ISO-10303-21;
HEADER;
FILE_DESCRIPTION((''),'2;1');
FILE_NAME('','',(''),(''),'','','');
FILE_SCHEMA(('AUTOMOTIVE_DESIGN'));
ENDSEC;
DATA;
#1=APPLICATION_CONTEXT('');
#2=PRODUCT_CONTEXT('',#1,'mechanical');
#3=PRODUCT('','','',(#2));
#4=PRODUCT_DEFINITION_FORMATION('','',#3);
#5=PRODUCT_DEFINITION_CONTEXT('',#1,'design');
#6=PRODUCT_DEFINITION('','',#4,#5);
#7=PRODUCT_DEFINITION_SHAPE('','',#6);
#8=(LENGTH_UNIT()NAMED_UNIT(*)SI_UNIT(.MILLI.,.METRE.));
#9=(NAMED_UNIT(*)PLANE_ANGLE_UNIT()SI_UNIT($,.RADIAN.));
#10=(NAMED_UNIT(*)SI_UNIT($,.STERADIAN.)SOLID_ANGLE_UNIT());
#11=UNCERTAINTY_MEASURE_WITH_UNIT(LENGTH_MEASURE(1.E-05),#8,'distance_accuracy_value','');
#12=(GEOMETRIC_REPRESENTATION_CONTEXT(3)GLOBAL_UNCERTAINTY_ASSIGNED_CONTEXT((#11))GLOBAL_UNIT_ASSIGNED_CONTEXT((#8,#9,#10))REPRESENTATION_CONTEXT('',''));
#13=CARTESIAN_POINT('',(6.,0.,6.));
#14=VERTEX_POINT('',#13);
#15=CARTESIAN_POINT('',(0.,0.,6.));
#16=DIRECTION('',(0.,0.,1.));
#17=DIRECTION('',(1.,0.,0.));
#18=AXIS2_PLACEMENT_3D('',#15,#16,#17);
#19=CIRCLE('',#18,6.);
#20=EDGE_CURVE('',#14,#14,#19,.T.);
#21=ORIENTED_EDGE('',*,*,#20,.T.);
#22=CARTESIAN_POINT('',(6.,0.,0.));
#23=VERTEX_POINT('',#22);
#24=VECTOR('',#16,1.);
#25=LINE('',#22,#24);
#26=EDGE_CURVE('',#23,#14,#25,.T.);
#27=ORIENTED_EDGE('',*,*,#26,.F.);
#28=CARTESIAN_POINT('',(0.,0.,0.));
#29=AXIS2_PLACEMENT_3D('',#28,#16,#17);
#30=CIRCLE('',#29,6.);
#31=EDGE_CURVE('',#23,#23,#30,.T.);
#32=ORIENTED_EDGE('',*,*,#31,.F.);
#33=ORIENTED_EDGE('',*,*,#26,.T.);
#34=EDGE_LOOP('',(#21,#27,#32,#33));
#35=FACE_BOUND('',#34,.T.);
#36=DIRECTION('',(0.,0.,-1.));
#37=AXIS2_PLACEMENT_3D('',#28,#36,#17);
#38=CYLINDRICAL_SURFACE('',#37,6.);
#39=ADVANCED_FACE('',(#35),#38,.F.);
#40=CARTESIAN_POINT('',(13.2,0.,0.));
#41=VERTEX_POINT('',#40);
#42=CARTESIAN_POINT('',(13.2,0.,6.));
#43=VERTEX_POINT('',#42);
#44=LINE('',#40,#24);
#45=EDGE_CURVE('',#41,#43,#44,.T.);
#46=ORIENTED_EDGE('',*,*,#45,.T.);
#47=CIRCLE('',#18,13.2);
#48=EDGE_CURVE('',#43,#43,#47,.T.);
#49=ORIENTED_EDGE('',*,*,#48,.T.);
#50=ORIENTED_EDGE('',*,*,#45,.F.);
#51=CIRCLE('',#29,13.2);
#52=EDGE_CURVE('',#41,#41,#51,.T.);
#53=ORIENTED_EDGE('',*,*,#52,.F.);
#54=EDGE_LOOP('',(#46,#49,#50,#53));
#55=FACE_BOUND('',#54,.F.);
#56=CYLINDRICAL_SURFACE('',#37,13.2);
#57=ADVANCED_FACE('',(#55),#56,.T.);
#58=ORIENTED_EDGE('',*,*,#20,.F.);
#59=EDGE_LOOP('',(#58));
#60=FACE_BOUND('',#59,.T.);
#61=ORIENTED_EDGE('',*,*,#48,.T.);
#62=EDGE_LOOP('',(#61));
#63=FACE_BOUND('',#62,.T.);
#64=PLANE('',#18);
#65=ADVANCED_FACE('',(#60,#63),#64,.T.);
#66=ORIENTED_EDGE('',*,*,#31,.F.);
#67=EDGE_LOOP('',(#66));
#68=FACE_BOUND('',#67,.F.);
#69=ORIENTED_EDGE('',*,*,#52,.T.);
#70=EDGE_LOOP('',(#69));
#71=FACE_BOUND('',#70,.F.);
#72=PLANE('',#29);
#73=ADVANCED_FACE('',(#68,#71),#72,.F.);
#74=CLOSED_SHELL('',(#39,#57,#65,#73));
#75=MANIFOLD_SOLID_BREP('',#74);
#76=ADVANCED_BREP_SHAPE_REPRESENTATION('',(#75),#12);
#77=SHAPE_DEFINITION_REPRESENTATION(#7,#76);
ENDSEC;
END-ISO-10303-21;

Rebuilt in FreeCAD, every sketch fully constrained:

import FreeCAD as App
import Part
import Sketcher
Q = App.Units.Quantity

doc = App.newDocument("Part")
params = doc.addObject("Spreadsheet::Sheet", "Params")
for row, (alias, value) in enumerate([
    ("sketch1_diameter", "12 mm"),
    ("sketch1_diameter2", "26.4 mm"),
    ("pad1_length", "6 mm"),
    ("sketch2_diameter", "12 mm"),
    ("sketch2_diameter2", "26.4 mm"),
    ("pad2_length", "6 mm"),
], start=1):
    params.set(f"A{row}", alias)
    params.set(f"B{row}", "=" + value)
    params.setAlias(f"B{row}", alias)

body = doc.addObject("PartDesign::Body", "Body")

# Sketch on XY plane
sketch1 = body.newObject("Sketcher::SketchObject", "Sketch")
sketch1.AttachmentSupport = (doc.getObject("XY_Plane"), [""])
sketch1.MapMode = "FlatFace"
sketch1.addGeometry(Part.Circle(App.Vector(0, 0, 0), App.Vector(0, 0, 1), 13), False)
sketch1.addGeometry(Part.Circle(App.Vector(0, 0, 0), App.Vector(0, 0, 1), 6), False)
sketch1.addConstraint(Sketcher.Constraint("Coincident", 0, 3, -1, 1))
sketch1.addConstraint(Sketcher.Constraint("Coincident", 1, 3, -1, 1))
sketch1.addConstraint(Sketcher.Constraint("Diameter", 1, Q("12 mm")))
sketch1.addConstraint(Sketcher.Constraint("Diameter", 0, Q("26.4 mm")))
sketch1.setExpression("Constraints[2]", "Params.sketch1_diameter")
sketch1.setExpression("Constraints[3]", "Params.sketch1_diameter2")
pad1 = body.newObject("PartDesign::Pad", "Pad")
pad1.Profile = sketch1
pad1.setExpression("Length", "Params.pad1_length")

# Sketch on XY plane
sketch2 = body.newObject("Sketcher::SketchObject", "Sketch001")
sketch2.AttachmentSupport = (doc.getObject("XY_Plane"), [""])
sketch2.MapMode = "FlatFace"
sketch2.addGeometry(Part.Circle(App.Vector(0, 0, 0), App.Vector(0, 0, 1), 13), False)
sketch2.addGeometry(Part.Circle(App.Vector(0, 0, 0), App.Vector(0, 0, 1), 6), False)
sketch2.addConstraint(Sketcher.Constraint("Coincident", 0, 3, -1, 1))
sketch2.addConstraint(Sketcher.Constraint("Coincident", 1, 3, -1, 1))
sketch2.addConstraint(Sketcher.Constraint("Diameter", 1, Q("12 mm")))
sketch2.addConstraint(Sketcher.Constraint("Diameter", 0, Q("26.4 mm")))
sketch2.setExpression("Constraints[2]", "Params.sketch2_diameter")
sketch2.setExpression("Constraints[3]", "Params.sketch2_diameter2")
pad2 = body.newObject("PartDesign::Pad", "Pad001")
pad2.Profile = sketch2
pad2.setExpression("Length", "Params.pad2_length")

doc.recompute()
